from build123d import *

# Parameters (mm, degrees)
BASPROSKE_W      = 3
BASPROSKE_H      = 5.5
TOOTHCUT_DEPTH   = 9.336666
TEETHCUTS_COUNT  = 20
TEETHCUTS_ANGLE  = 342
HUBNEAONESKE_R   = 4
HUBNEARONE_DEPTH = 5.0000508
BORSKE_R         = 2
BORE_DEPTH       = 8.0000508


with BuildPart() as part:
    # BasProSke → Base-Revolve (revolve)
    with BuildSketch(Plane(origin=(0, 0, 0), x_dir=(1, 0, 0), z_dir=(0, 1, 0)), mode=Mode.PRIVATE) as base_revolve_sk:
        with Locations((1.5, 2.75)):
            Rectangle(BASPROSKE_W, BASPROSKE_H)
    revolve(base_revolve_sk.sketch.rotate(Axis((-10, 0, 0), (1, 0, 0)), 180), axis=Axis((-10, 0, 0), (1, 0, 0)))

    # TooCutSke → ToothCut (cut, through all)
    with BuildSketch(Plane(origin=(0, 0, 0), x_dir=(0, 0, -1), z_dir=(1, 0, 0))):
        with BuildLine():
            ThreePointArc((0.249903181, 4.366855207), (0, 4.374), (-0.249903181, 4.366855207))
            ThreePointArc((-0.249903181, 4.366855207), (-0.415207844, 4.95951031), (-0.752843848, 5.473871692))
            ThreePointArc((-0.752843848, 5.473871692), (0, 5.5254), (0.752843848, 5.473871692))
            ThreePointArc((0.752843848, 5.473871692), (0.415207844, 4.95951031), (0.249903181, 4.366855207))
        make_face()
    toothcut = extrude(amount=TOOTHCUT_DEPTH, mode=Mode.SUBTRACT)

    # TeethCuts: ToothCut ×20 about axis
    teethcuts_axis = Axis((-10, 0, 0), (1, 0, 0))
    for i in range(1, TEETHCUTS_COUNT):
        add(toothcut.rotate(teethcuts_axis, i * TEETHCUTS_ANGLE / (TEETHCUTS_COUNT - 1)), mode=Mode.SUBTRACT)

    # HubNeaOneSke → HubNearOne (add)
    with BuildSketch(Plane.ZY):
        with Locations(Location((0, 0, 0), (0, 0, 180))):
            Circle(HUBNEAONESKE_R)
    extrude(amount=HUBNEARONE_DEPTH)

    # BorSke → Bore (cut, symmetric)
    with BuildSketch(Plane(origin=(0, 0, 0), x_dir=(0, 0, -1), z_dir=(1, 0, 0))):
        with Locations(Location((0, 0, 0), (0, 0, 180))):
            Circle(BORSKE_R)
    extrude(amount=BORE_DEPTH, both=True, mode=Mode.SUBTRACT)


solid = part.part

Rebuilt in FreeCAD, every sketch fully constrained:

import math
import FreeCAD as App
import Part
import Sketcher

V = App.Vector

doc = App.newDocument("Part")
params = doc.addObject("Spreadsheet::Sheet", "Params")
for row, (alias, value) in enumerate([
    ("sketch1_width", "3 mm"),
    ("sketch1_height", "5.5 mm"),
    ("revolution_angle", "360 deg"),
    ("sketch2_radius", "2 mm"),
    ("sketch3_diameter", "8 mm"),
    ("pad1_length", "5.000051 mm"),
    ("sketch4_diameter", "4 mm"),
    ("pocket2_length", "16.000102 mm"),
], start=1):
    params.set(f"A{row}", alias)
    params.set(f"B{row}", "=" + value)
    params.setAlias(f"B{row}", alias)

body = doc.addObject("PartDesign::Body", "Body")

# Sketch on XZ plane
sketch1 = body.newObject("Sketcher::SketchObject", "Sketch")
sketch1.AttachmentSupport = (doc.getObject("XZ_Plane"), [""])
sketch1.MapMode = "FlatFace"
sketch1.addGeometry([
    Part.LineSegment(V(0, -5.5, 0), V(0, 0, 0)),
    Part.LineSegment(V(0, 0, 0), V(3, 0, 0)),
    Part.LineSegment(V(3, 0, 0), V(3, -5.5, 0)),
    Part.LineSegment(V(3, -5.5, 0), V(0, -5.5, 0)),
], False)
sketch1.addConstraint([
    Sketcher.Constraint("Coincident", 0, 2, 1, 1),
    Sketcher.Constraint("Coincident", 1, 2, 2, 1),
    Sketcher.Constraint("Coincident", 2, 2, 3, 1),
    Sketcher.Constraint("Coincident", 3, 2, 0, 1),
    Sketcher.Constraint("Vertical", 0),
    Sketcher.Constraint("Horizontal", 1),
    Sketcher.Constraint("Vertical", 2),
    Sketcher.Constraint("Horizontal", 3),
    Sketcher.Constraint("Coincident", 0, 2, -1, 1),
    Sketcher.Constraint("DistanceX", 1, 1, 1, 2, 3.0),
    Sketcher.Constraint("DistanceY", 0, 1, 0, 2, 5.5),
])
sketch1.setExpression("Constraints[9]", "Params.sketch1_width")
sketch1.setExpression("Constraints[10]", "Params.sketch1_height")
revolution = body.newObject("PartDesign::Revolution", "Revolution")
revolution.Profile = sketch1
revolution.ReferenceAxis = (sketch1, ["H_Axis"])
revolution.setExpression("Angle", "Params.revolution_angle")

# Sketch on YZ plane
sketch2 = body.newObject("Sketcher::SketchObject", "Sketch001")
sketch2.AttachmentSupport = (doc.getObject("YZ_Plane"), [""])
sketch2.MapMode = "FlatFace"
sketch2.addGeometry([
    Part.ArcOfCircle(Part.Circle(V(0, 0, 0), V(0, 0, 1), 4.374), math.radians(-3.275308), math.radians(3.275308)),
    Part.ArcOfCircle(Part.Circle(V(4.132243, -2.236095, 0), V(0, 0, 1), 2), math.radians(47.870067), math.radians(83.263356)),
    Part.ArcOfCircle(Part.Circle(V(0, 0, 0), V(0, 0, 1), 5.5254), math.radians(-7.830992), math.radians(7.830992)),
    Part.ArcOfCircle(Part.Circle(V(4.132243, 2.236095, 0), V(0, 0, 1), 2), math.radians(-83.263356), math.radians(-47.870067)),
], False)
sketch2.addConstraint([
    Sketcher.Constraint("Coincident", 0, 1, 1, 2),
    Sketcher.Constraint("Coincident", 1, 1, 2, 1),
    Sketcher.Constraint("Coincident", 2, 2, 3, 2),
    Sketcher.Constraint("Coincident", 3, 1, 0, 2),
    Sketcher.Constraint("Coincident", 0, 3, -1, 1),
    Sketcher.Constraint("Coincident", 2, 3, -1, 1),
    Sketcher.Constraint("Equal", 1, 3),
    Sketcher.Constraint("Symmetric", 1, 3, 3, 3, -1),
    Sketcher.Constraint("Radius", 1, 2.0),
    Sketcher.Constraint("Radius", 0, 4.374),
    Sketcher.Constraint("Radius", 2, 5.5254),
    Sketcher.Constraint("DistanceY", 0, 1, 3, 3, 2.485998),
    Sketcher.Constraint("DistanceX", -1, 1, 1, 1, 5.473872),
])
sketch2.setExpression("Constraints[8]", "Params.sketch2_radius")
pocket1 = body.newObject("PartDesign::Pocket", "Pocket")
pocket1.Profile = sketch2
pocket1.Type = "ThroughAll"
pocket1.Reversed = True
doc.recompute()

polarpattern = body.newObject("PartDesign::PolarPattern", "PolarPattern")
polarpattern.Originals = [pocket1]
polarpattern.Axis = (doc.getObject("X_Axis"), [""])
polarpattern.Angle = 360
polarpattern.Occurrences = 20
body.Tip = polarpattern

# Sketch on YZ plane
sketch3 = body.newObject("Sketcher::SketchObject", "Sketch002")
sketch3.AttachmentSupport = (doc.getObject("YZ_Plane"), [""])
sketch3.MapMode = "FlatFace"
sketch3.addGeometry(Part.Circle(V(0, 0, 0), V(0, 0, 1), 4), False)
sketch3.addConstraint([
    Sketcher.Constraint("Coincident", 0, 3, -1, 1),
    Sketcher.Constraint("Diameter", 0, 8.0),
])
sketch3.setExpression("Constraints[1]", "Params.sketch3_diameter")
pad1 = body.newObject("PartDesign::Pad", "Pad")
pad1.Profile = sketch3
pad1.setExpression("Length", "Params.pad1_length")
pad1.Reversed = True

# Sketch on YZ plane
sketch4 = body.newObject("Sketcher::SketchObject", "Sketch003")
sketch4.AttachmentSupport = (doc.getObject("YZ_Plane"), [""])
sketch4.MapMode = "FlatFace"
sketch4.addGeometry(Part.Circle(V(0, 0, 0), V(0, 0, 1), 2), False)
sketch4.addConstraint([
    Sketcher.Constraint("Coincident", 0, 3, -1, 1),
    Sketcher.Constraint("Diameter", 0, 4.0),
])
sketch4.setExpression("Constraints[1]", "Params.sketch4_diameter")
pocket2 = body.newObject("PartDesign::Pocket", "Pocket001")
pocket2.Profile = sketch4
pocket2.setExpression("Length", "Params.pocket2_length")
pocket2.Midplane = True

doc.recompute()
